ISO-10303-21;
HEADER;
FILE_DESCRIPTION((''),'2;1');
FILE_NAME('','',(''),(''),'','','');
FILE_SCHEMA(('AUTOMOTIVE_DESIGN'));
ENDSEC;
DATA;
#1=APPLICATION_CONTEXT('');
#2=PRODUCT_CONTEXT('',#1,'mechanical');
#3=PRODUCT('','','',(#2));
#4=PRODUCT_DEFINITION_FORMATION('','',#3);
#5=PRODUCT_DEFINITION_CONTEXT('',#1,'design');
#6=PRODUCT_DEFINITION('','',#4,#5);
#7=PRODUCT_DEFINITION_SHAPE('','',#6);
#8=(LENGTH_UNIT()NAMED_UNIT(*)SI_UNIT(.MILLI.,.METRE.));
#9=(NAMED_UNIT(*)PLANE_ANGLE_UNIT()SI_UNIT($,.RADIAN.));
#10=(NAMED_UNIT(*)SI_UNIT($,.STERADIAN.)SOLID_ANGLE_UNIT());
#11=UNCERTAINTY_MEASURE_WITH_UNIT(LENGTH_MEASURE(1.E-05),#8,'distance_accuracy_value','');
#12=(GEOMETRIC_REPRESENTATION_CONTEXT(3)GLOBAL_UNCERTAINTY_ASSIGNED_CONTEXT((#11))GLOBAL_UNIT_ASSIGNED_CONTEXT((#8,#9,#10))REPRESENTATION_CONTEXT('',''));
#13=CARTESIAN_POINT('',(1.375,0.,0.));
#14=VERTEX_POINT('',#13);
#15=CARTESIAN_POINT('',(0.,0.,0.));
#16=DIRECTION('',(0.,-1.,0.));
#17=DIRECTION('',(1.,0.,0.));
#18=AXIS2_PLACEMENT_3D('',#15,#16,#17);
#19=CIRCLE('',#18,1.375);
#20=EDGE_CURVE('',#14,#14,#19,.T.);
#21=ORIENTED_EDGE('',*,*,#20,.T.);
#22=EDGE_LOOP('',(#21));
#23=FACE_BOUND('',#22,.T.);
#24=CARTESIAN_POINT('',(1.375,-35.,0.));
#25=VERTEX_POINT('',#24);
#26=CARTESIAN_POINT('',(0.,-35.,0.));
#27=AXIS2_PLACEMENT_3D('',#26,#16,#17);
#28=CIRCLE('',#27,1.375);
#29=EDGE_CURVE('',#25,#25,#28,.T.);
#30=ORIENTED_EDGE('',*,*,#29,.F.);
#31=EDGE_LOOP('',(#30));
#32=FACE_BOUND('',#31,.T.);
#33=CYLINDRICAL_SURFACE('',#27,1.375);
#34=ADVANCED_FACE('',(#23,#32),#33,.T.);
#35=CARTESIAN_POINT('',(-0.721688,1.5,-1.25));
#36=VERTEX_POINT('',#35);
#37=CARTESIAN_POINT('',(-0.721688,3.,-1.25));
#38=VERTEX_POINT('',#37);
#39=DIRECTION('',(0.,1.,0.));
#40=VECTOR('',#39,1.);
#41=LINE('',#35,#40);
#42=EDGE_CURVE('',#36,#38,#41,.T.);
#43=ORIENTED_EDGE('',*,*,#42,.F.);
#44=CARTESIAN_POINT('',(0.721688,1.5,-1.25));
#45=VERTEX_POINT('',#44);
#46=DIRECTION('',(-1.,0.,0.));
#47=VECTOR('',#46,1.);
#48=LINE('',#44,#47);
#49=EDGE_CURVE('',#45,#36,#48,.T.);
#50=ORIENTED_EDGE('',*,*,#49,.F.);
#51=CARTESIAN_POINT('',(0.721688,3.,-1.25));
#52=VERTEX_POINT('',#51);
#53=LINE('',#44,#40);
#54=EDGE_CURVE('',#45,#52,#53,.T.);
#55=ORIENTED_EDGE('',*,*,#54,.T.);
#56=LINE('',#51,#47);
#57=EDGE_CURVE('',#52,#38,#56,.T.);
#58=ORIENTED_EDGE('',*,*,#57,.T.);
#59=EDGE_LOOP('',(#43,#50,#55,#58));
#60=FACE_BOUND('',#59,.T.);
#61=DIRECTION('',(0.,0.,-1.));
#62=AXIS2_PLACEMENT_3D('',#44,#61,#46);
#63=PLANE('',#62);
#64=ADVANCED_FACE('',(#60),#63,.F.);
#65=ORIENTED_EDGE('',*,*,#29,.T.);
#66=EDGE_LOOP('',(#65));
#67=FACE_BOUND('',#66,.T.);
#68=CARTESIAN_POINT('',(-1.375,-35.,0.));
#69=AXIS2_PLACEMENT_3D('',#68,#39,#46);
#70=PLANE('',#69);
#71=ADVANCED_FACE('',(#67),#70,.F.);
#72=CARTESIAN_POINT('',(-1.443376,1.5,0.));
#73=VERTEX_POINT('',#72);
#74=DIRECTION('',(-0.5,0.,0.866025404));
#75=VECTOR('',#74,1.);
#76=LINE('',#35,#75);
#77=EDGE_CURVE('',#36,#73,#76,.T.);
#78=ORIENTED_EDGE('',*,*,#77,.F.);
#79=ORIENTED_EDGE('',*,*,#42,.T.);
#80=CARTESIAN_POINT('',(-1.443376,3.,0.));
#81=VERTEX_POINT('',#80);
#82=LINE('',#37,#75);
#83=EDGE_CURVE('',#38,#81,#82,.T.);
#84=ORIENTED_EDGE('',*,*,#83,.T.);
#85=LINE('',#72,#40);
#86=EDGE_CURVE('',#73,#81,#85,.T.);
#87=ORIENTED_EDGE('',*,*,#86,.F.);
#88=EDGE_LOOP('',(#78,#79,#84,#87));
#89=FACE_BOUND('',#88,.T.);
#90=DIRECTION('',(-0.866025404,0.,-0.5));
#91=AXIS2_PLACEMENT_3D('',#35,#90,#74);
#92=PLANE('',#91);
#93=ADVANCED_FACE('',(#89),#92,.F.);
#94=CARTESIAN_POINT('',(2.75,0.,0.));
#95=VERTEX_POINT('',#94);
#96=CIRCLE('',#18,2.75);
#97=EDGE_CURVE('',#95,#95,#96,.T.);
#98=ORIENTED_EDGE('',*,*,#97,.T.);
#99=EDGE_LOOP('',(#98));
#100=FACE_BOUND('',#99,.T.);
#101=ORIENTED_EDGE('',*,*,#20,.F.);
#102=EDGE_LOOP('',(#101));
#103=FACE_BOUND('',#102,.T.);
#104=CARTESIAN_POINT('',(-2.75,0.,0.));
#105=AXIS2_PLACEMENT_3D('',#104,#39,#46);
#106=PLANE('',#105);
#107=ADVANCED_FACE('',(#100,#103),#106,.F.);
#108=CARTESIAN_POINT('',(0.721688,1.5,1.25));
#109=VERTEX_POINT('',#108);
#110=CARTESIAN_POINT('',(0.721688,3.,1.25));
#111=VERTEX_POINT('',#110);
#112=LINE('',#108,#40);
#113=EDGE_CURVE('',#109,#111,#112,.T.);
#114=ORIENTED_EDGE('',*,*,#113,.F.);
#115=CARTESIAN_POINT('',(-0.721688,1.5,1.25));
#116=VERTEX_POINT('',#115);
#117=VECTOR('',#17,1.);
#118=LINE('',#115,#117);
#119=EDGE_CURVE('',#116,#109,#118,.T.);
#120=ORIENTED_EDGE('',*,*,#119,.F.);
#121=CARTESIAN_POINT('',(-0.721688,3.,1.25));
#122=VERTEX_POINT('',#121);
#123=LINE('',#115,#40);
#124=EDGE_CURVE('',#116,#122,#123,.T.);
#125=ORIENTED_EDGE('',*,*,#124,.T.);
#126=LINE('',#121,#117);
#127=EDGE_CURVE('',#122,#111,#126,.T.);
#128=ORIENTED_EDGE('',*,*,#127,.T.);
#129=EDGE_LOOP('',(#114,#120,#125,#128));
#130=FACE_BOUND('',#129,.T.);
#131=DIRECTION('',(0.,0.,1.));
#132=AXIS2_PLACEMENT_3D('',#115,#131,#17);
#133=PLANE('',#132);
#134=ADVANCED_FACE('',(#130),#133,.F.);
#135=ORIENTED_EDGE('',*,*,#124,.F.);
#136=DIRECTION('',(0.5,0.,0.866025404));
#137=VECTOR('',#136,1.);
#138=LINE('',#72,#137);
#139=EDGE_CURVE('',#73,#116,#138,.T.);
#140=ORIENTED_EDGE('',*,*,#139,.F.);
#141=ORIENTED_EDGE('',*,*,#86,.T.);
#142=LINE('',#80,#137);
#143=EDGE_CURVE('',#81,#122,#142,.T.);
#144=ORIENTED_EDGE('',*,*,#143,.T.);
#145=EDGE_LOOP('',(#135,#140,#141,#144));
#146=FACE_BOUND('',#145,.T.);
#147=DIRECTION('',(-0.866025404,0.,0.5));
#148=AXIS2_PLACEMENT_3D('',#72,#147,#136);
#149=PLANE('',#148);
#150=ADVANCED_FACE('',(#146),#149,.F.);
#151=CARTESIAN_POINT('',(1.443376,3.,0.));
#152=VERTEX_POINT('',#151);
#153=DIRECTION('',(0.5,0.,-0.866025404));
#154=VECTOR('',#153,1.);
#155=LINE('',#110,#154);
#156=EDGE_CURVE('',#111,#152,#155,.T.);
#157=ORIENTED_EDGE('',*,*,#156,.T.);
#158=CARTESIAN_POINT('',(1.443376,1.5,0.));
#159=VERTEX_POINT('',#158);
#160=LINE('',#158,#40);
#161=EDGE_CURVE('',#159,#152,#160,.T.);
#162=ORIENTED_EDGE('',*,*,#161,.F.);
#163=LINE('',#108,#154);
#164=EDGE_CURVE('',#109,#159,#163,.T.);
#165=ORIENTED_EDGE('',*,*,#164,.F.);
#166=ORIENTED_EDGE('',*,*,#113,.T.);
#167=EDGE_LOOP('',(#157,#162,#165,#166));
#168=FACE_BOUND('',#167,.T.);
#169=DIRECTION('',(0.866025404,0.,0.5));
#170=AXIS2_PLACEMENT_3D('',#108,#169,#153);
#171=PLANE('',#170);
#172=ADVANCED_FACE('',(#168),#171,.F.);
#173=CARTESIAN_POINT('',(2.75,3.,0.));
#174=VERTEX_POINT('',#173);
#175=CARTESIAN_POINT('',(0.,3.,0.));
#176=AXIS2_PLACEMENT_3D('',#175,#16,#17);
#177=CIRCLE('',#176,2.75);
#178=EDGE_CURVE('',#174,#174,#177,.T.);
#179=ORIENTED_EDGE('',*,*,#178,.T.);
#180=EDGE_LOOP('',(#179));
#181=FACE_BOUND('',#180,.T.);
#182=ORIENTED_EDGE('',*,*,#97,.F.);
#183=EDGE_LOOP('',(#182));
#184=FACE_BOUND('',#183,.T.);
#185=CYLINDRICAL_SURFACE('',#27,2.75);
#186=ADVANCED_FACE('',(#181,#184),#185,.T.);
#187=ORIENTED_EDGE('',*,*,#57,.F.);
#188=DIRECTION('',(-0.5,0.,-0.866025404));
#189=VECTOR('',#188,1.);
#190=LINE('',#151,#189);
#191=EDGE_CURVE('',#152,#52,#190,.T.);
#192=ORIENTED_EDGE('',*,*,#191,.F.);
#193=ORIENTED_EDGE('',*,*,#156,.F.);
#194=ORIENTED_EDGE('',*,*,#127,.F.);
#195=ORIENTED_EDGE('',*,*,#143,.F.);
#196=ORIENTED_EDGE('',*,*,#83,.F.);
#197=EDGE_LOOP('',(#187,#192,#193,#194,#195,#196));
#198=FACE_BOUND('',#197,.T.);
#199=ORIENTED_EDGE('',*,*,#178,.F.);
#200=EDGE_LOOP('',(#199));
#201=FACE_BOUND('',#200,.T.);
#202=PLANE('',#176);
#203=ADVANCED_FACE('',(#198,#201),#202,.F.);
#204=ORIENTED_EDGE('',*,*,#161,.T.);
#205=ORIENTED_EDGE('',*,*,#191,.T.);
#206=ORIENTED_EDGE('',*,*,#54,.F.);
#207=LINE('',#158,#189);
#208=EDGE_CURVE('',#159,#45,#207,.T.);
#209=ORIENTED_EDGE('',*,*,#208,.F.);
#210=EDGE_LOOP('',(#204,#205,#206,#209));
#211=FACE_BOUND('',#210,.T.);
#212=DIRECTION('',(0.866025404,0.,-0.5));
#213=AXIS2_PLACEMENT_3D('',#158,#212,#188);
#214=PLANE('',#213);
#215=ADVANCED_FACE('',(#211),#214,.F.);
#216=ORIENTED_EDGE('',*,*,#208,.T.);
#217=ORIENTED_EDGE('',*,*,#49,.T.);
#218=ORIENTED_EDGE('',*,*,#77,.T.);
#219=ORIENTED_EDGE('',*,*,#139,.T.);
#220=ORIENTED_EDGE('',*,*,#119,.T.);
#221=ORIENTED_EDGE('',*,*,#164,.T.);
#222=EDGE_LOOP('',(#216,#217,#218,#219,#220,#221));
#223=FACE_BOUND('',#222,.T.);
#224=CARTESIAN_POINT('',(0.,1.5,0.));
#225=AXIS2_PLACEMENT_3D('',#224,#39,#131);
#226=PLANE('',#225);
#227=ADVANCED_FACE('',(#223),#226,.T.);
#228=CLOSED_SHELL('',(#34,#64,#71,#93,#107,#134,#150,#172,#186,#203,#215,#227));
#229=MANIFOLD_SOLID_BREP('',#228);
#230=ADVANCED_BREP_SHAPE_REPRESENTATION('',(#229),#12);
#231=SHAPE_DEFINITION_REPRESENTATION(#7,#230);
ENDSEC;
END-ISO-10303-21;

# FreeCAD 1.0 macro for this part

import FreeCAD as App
import Part
import Sketcher

V = App.Vector
Q = App.Units.Quantity

doc = App.newDocument("Part")
params = doc.addObject("Spreadsheet::Sheet", "Params")
for row, (alias, value) in enumerate([
    ("sketch1_height", "3 mm"),
    ("sketch1_height2", "35 mm"),
    ("sketch1_width", "2.75 mm"),
    ("revolution_angle", "360 deg"),
    ("pocket1_length", "1.5 mm"),
], start=1):
    params.set(f"A{row}", alias)
    params.set(f"B{row}", "=" + value)
    params.setAlias(f"B{row}", alias)

body = doc.addObject("PartDesign::Body", "Body")

# Sketch on XY plane
sketch1 = body.newObject("Sketcher::SketchObject", "Sketch")
sketch1.AttachmentSupport = (doc.getObject("XY_Plane"), [""])
sketch1.MapMode = "FlatFace"
sketch1.addGeometry([
    Part.LineSegment(V(0, 3, 0), V(-2.8, 3, 0)),  # 0
    Part.LineSegment(V(-2.8, 3, 0), V(-2.8, 0, 0)),  # 1
    Part.LineSegment(V(-2.8, 0, 0), V(-1.4, 0, 0)),  # 2
    Part.LineSegment(V(-1.4, 0, 0), V(-1.4, -35, 0)),  # 3
    Part.LineSegment(V(-1.4, -35, 0), V(0, -35, 0)),  # 4
    Part.LineSegment(V(0, -35, 0), V(0, 3, 0)),  # 5
], False)
sketch1.addConstraint([
    Sketcher.Constraint("Coincident", 0, 2, 1, 1),
    Sketcher.Constraint("Coincident", 1, 2, 2, 1),
    Sketcher.Constraint("Coincident", 2, 2, 3, 1),
    Sketcher.Constraint("Coincident", 3, 2, 4, 1),
    Sketcher.Constraint("Coincident", 4, 2, 5, 1),
    Sketcher.Constraint("Coincident", 5, 2, 0, 1),
    Sketcher.Constraint("Horizontal", 0),
    Sketcher.Constraint("Vertical", 1),
    Sketcher.Constraint("Horizontal", 2),
    Sketcher.Constraint("Vertical", 3),
    Sketcher.Constraint("Horizontal", 4),
    Sketcher.Constraint("Vertical", 5),
    Sketcher.Constraint("PointOnObject", 1, 2, -1),
    Sketcher.Constraint("PointOnObject", 4, 2, -2),
    Sketcher.Constraint("Equal", 2, 4),
    Sketcher.Constraint("DistanceY", 1, 2, 1, 1, Q("3 mm")),
    Sketcher.Constraint("DistanceY", 3, 2, 3, 1, Q("35 mm")),
    Sketcher.Constraint("DistanceX", 0, 2, 0, 1, Q("2.75 mm")),
])
sketch1.setExpression("Constraints[15]", "Params.sketch1_height")
sketch1.setExpression("Constraints[16]", "Params.sketch1_height2")
sketch1.setExpression("Constraints[17]", "Params.sketch1_width")
revolution = body.newObject("PartDesign::Revolution", "Revolution")
revolution.Profile = sketch1
revolution.ReferenceAxis = (sketch1, ["V_Axis"])
revolution.setExpression("Angle", "Params.revolution_angle")

# Sketch on XZ plane
sketch2 = body.newObject("Sketcher::SketchObject", "Sketch001")
sketch2.AttachmentSupport = (doc.getObject("XZ_Plane"), [""])
sketch2.MapMode = "FlatFace"
sketch2.AttachmentOffset = App.Placement(V(0, 0, -3), App.Rotation())
sketch2.addGeometry([
    Part.LineSegment(V(0.7, 1.2, 0), V(1.4, 0, 0)),  # 0
    Part.LineSegment(V(1.4, 0, 0), V(0.7, -1.2, 0)),  # 1
    Part.LineSegment(V(0.7, -1.2, 0), V(-0.7, -1.2, 0)),  # 2
    Part.LineSegment(V(-0.7, -1.2, 0), V(-1.4, 0, 0)),  # 3
    Part.LineSegment(V(-1.4, 0, 0), V(-0.7, 1.2, 0)),  # 4
    Part.LineSegment(V(-0.7, 1.2, 0), V(0.7, 1.2, 0)),  # 5
], False)
sketch2.addConstraint([
    Sketcher.Constraint("Coincident", 0, 2, 1, 1),
    Sketcher.Constraint("Coincident", 1, 2, 2, 1),
    Sketcher.Constraint("Coincident", 2, 2, 3, 1),
    Sketcher.Constraint("Coincident", 3, 2, 4, 1),
    Sketcher.Constraint("Coincident", 4, 2, 5, 1),
    Sketcher.Constraint("Coincident", 5, 2, 0, 1),
    Sketcher.Constraint("Horizontal", 2),
    Sketcher.Constraint("Horizontal", 5),
    Sketcher.Constraint("Symmetric", 0, 2, 3, 2, -1, 1),
    Sketcher.Constraint("Symmetric", 1, 2, 4, 2, -1, 1),
    Sketcher.Constraint("PointOnObject", 0, 2, -1),
    Sketcher.Constraint("Parallel", 0, 3),
    Sketcher.Constraint("Vertical", 2, 2, 4, 2),
    Sketcher.Constraint("Angle", 0, Q("-60 deg")),
    Sketcher.Constraint("DistanceY", 2, 2, 4, 2, Q("2.5 mm")),
    Sketcher.Constraint("DistanceX", 2, 2, 2, 1, Q("1.443376 mm")),
])
pocket1 = body.newObject("PartDesign::Pocket", "Pocket")
pocket1.Profile = sketch2
pocket1.setExpression("Length", "Params.pocket1_length")
pocket1.Reversed = True

doc.recompute()
